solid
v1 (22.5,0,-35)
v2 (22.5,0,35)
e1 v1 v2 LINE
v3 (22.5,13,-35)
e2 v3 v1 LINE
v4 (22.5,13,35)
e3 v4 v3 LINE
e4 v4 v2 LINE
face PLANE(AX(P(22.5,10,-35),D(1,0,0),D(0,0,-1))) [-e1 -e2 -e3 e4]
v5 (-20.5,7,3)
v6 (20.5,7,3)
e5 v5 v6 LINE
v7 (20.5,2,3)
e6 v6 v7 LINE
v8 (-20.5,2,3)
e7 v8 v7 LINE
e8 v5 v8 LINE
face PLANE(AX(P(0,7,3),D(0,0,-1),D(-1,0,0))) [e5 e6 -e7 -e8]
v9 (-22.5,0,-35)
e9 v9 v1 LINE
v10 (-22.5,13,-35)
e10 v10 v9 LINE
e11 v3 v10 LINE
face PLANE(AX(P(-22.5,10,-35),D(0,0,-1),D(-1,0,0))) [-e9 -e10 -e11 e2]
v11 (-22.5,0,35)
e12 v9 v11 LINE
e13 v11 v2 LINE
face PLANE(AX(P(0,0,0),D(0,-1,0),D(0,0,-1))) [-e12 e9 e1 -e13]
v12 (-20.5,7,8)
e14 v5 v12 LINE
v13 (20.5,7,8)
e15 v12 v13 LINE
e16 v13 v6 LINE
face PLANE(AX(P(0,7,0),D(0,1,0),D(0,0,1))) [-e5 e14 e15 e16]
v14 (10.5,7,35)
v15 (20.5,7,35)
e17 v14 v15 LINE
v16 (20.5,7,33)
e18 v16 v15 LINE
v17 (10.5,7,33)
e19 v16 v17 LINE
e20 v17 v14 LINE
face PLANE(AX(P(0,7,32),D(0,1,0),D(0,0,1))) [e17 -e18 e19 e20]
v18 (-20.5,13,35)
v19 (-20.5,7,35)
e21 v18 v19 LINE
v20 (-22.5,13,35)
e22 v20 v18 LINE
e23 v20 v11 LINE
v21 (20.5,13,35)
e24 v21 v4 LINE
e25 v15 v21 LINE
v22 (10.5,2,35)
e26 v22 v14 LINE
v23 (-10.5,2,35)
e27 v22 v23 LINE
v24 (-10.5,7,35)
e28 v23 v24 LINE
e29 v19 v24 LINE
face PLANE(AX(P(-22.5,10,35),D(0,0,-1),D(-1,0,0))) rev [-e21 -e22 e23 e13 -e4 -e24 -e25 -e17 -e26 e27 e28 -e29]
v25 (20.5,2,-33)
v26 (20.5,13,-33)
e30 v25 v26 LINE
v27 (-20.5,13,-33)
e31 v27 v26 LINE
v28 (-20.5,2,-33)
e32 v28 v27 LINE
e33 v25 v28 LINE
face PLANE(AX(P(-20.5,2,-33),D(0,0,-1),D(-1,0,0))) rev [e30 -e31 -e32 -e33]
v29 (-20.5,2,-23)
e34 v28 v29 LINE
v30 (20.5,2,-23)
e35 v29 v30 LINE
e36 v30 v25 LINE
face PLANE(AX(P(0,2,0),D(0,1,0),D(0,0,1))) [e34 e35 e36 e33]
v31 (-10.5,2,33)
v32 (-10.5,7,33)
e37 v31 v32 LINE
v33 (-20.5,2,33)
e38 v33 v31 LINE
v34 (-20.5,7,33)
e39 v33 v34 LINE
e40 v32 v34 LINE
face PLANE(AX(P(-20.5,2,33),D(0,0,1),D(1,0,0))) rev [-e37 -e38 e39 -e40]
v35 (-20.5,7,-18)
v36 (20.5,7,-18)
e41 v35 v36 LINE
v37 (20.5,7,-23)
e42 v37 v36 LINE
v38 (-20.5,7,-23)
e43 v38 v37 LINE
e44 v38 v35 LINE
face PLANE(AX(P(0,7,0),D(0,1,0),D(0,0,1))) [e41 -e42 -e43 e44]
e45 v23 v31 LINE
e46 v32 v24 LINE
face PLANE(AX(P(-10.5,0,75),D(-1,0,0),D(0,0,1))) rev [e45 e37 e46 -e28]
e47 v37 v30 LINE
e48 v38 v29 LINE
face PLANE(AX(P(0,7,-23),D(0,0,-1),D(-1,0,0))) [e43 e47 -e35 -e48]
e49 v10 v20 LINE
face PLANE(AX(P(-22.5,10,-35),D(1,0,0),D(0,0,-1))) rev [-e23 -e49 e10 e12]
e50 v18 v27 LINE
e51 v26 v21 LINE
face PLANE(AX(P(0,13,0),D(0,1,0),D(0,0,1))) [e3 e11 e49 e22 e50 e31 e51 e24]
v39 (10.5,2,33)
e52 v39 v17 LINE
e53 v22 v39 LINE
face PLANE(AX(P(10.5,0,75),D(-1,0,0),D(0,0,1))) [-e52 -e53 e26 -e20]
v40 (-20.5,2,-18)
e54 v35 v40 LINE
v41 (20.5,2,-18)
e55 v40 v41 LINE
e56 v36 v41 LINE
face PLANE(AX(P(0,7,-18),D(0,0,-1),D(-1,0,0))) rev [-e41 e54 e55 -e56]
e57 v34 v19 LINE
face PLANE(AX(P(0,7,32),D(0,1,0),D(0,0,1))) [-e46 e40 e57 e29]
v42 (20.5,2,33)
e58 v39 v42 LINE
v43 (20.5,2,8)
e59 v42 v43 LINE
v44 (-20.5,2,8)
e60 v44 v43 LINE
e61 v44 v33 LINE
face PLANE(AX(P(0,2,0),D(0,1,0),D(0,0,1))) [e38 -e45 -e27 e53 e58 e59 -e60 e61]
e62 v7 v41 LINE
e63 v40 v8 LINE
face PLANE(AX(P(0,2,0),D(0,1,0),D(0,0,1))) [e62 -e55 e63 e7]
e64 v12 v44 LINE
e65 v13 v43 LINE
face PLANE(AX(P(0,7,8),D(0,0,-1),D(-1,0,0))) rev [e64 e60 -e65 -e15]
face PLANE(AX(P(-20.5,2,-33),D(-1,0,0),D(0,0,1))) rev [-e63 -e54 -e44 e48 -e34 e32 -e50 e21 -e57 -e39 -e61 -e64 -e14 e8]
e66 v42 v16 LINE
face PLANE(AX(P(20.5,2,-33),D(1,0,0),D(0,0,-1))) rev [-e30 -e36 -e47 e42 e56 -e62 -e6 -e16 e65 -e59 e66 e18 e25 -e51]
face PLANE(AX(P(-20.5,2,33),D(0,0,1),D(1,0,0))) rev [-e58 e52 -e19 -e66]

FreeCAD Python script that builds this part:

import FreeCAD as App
import Part
import Sketcher
from FreeCAD import Vector
Q = App.Units.Quantity

doc = App.newDocument("Part")
body = doc.addObject("PartDesign::Body", "Body")

# Sketch on XZ plane
sketch1 = body.newObject("Sketcher::SketchObject", "Sketch")
sketch1.AttachmentSupport = (doc.getObject("XZ_Plane"), [""])
sketch1.MapMode = "FlatFace"
sketch1.addGeometry([
    Part.LineSegment(Vector(-22, -35, 0), Vector(-22, 35, 0)),
    Part.LineSegment(Vector(-22, 35, 0), Vector(22, 35, 0)),
    Part.LineSegment(Vector(22, 35, 0), Vector(22, -35, 0)),
    Part.LineSegment(Vector(22, -35, 0), Vector(-22, -35, 0)),
], False)
sketch1.addConstraint([
    Sketcher.Constraint("Coincident", 0, 2, 1, 1),
    Sketcher.Constraint("Coincident", 1, 2, 2, 1),
    Sketcher.Constraint("Coincident", 2, 2, 3, 1),
    Sketcher.Constraint("Coincident", 3, 2, 0, 1),
    Sketcher.Constraint("Vertical", 0),
    Sketcher.Constraint("Horizontal", 1),
    Sketcher.Constraint("Vertical", 2),
    Sketcher.Constraint("Horizontal", 3),
    Sketcher.Constraint("Symmetric", 0, 2, 2, 2, -1, 1),
    Sketcher.Constraint("DistanceX", 1, 1, 1, 2, Q("45 mm")),
    Sketcher.Constraint("DistanceY", 0, 1, 0, 2, Q("70 mm")),
])
pad1 = body.newObject("PartDesign::Pad", "Pad")
pad1.Profile = sketch1
pad1.Length = 10
pad1.Reversed = True

# Sketch on XZ plane
sketch2 = body.newObject("Sketcher::SketchObject", "Sketch001")
sketch2.AttachmentSupport = (doc.getObject("XZ_Plane"), [""])
sketch2.MapMode = "FlatFace"
sketch2.AttachmentOffset = App.Placement(Vector(0, 0, -10), App.Rotation())
sketch2.addGeometry([
    Part.LineSegment(Vector(-20, -33, 0), Vector(-20, 33, 0)),
    Part.LineSegment(Vector(-20, 33, 0), Vector(20, 33, 0)),
    Part.LineSegment(Vector(20, 33, 0), Vector(20, -33, 0)),
    Part.LineSegment(Vector(20, -33, 0), Vector(-20, -33, 0)),
], False)
sketch2.addConstraint([
    Sketcher.Constraint("Coincident", 0, 2, 1, 1),
    Sketcher.Constraint("Coincident", 1, 2, 2, 1),
    Sketcher.Constraint("Coincident", 2, 2, 3, 1),
    Sketcher.Constraint("Coincident", 3, 2, 0, 1),
    Sketcher.Constraint("Vertical", 0),
    Sketcher.Constraint("Horizontal", 1),
    Sketcher.Constraint("Vertical", 2),
    Sketcher.Constraint("Horizontal", 3),
    Sketcher.Constraint("Symmetric", 0, 2, 2, 2, -1, 1),
    Sketcher.Constraint("DistanceX", 1, 1, 1, 2, Q("41 mm")),
    Sketcher.Constraint("DistanceY", 0, 1, 0, 2, Q("66 mm")),
])
pocket1 = body.newObject("PartDesign::Pocket", "Pocket")
pocket1.Profile = sketch2
pocket1.Length = 8
pocket1.Reversed = True

# Sketch on XY plane
sketch3 = body.newObject("Sketcher::SketchObject", "Sketch002")
sketch3.AttachmentSupport = (doc.getObject("XY_Plane"), [""])
sketch3.MapMode = "FlatFace"
sketch3.AttachmentOffset = App.Placement(Vector(0, 0, 33), App.Rotation())
sketch3.addGeometry([
    Part.LineSegment(Vector(20.5, 10, 0), Vector(20.5, 7, 0)),
    Part.LineSegment(Vector(20.5, 7, 0), Vector(-20.5, 7, 0)),
    Part.LineSegment(Vector(-20.5, 7, 0), Vector(-20.5, 10, 0)),
    Part.LineSegment(Vector(-20.5, 10, 0), Vector(20.5, 10, 0)),
], False)
sketch3.addConstraint([
    Sketcher.Constraint("Coincident", 0, 2, 1, 1),
    Sketcher.Constraint("Coincident", 1, 2, 2, 1),
    Sketcher.Constraint("Coincident", 2, 2, 3, 1),
    Sketcher.Constraint("Coincident", 3, 2, 0, 1),
    Sketcher.Constraint("Vertical", 0),
    Sketcher.Constraint("Horizontal", 1),
    Sketcher.Constraint("Vertical", 2),
    Sketcher.Constraint("Horizontal", 3),
    Sketcher.Constraint("DistanceX", 1, 2, 1, 1, Q("41 mm")),
    Sketcher.Constraint("DistanceY", 0, 2, 0, 1, Q("3 mm")),
    Sketcher.Constraint("DistanceY", -1, 1, 0, 2, Q("7 mm")),
    Sketcher.Constraint("DistanceX", -1, 1, 0, 2, Q("20.5 mm")),
])
pocket2 = body.newObject("PartDesign::Pocket", "Pocket001")
pocket2.Profile = sketch3
pocket2.Type = "TwoLengths"
pocket2.Length = 1
pocket2.Length2 = 81

# Sketch on XY plane
sketch4 = body.newObject("Sketcher::SketchObject", "Sketch003")
sketch4.AttachmentSupport = (doc.getObject("XY_Plane"), [""])
sketch4.MapMode = "FlatFace"
sketch4.AttachmentOffset = App.Placement(Vector(0, 0, 33), App.Rotation())
sketch4.addGeometry([
    Part.LineSegment(Vector(10, 7, 0), Vector(10, 2, 0)),
    Part.LineSegment(Vector(10, 2, 0), Vector(-10, 2, 0)),
    Part.LineSegment(Vector(-10, 2, 0), Vector(-10, 7, 0)),
    Part.LineSegment(Vector(-10, 7, 0), Vector(10, 7, 0)),
], False)
sketch4.addConstraint([
    Sketcher.Constraint("Coincident", 0, 2, 1, 1),
    Sketcher.Constraint("Coincident", 1, 2, 2, 1),
    Sketcher.Constraint("Coincident", 2, 2, 3, 1),
    Sketcher.Constraint("Coincident", 3, 2, 0, 1),
    Sketcher.Constraint("Vertical", 0),
    Sketcher.Constraint("Horizontal", 1),
    Sketcher.Constraint("Vertical", 2),
    Sketcher.Constraint("Horizontal", 3),
    Sketcher.Constraint("DistanceX", 1, 2, 1, 1, Q("21 mm")),
    Sketcher.Constraint("DistanceY", 0, 2, 0, 1, Q("5 mm")),
    Sketcher.Constraint("DistanceY", -1, 1, 0, 2, Q("2 mm")),
    Sketcher.Constraint("DistanceX", -1, 1, 0, 2, Q("10.5 mm")),
])
pocket3 = body.newObject("PartDesign::Pocket", "Pocket002")
pocket3.Profile = sketch4
pocket3.Length = 42
pocket3.Reversed = True

# Sketch on XZ plane
sketch5 = body.newObject("Sketcher::SketchObject", "Sketch004")
sketch5.AttachmentSupport = (doc.getObject("XZ_Plane"), [""])
sketch5.MapMode = "FlatFace"
sketch5.AttachmentOffset = App.Placement(Vector(0, 0, -2), App.Rotation())
sketch5.addGeometry([
    Part.LineSegment(Vector(-20, 3, 0), Vector(-20, 8, 0)),
    Part.LineSegment(Vector(-20, 8, 0), Vector(20, 8, 0)),
    Part.LineSegment(Vector(20, 8, 0), Vector(20, 3, 0)),
    Part.LineSegment(Vector(20, 3, 0), Vector(-20, 3, 0)),
], False)
sketch5.addConstraint([
    Sketcher.Constraint("Coincident", 0, 2, 1, 1),
    Sketcher.Constraint("Coincident", 1, 2, 2, 1),
    Sketcher.Constraint("Coincident", 2, 2, 3, 1),
    Sketcher.Constraint("Coincident", 3, 2, 0, 1),
    Sketcher.Constraint("Vertical", 0),
    Sketcher.Constraint("Horizontal", 1),
    Sketcher.Constraint("Vertical", 2),
    Sketcher.Constraint("Horizontal", 3),
    Sketcher.Constraint("DistanceX", 1, 1, 1, 2, Q("41 mm")),
    Sketcher.Constraint("DistanceY", 0, 1, 0, 2, Q("5 mm")),
    Sketcher.Constraint("DistanceY", -1, 1, 0, 2, Q("8 mm")),
    Sketcher.Constraint("DistanceX", 0, 2, -1, 1, Q("20.5 mm")),
])
pad2 = body.newObject("PartDesign::Pad", "Pad001")
pad2.Profile = sketch5
pad2.Length = 5
pad2.Reversed = True

# Sketch on XZ plane
sketch6 = body.newObject("Sketcher::SketchObject", "Sketch005")
sketch6.AttachmentSupport = (doc.getObject("XZ_Plane"), [""])
sketch6.MapMode = "FlatFace"
sketch6.AttachmentOffset = App.Placement(Vector(0, 0, -2), App.Rotation())
sketch6.addGeometry([
    Part.LineSegment(Vector(-20, -23, 0), Vector(-20, -18, 0)),
    Part.LineSegment(Vector(-20, -18, 0), Vector(20, -18, 0)),
    Part.LineSegment(Vector(20, -18, 0), Vector(20, -23, 0)),
    Part.LineSegment(Vector(20, -23, 0), Vector(-20, -23, 0)),
], False)
sketch6.addConstraint([
    Sketcher.Constraint("Coincident", 0, 2, 1, 1),
    Sketcher.Constraint("Coincident", 1, 2, 2, 1),
    Sketcher.Constraint("Coincident", 2, 2, 3, 1),
    Sketcher.Constraint("Coincident", 3, 2, 0, 1),
    Sketcher.Constraint("Vertical", 0),
    Sketcher.Constraint("Horizontal", 1),
    Sketcher.Constraint("Vertical", 2),
    Sketcher.Constraint("Horizontal", 3),
    Sketcher.Constraint("DistanceX", 1, 1, 1, 2, Q("41 mm")),
    Sketcher.Constraint("DistanceY", 0, 1, 0, 2, Q("5 mm")),
    Sketcher.Constraint("DistanceY", 0, 2, -1, 1, Q("18 mm")),
    Sketcher.Constraint("DistanceX", 0, 2, -1, 1, Q("20.5 mm")),
])
pad3 = body.newObject("PartDesign::Pad", "Pad002")
pad3.Profile = sketch6
pad3.Length = 5
pad3.Reversed = True

# Sketch on XZ plane
sketch7 = body.newObject("Sketcher::SketchObject", "Sketch006")
sketch7.AttachmentSupport = (doc.getObject("XZ_Plane"), [""])
sketch7.MapMode = "FlatFace"
sketch7.AttachmentOffset = App.Placement(Vector(0, 0, -10), App.Rotation())
sketch7.addGeometry([
    Part.LineSegment(Vector(-22.5, -35, 0), Vector(-22.5, 35, 0)),
    Part.LineSegment(Vector(-22.5, 35, 0), Vector(-20.5, 35, 0)),
    Part.LineSegment(Vector(-20.5, 35, 0), Vector(-20.5, -35, 0)),
    Part.LineSegment(Vector(-20.5, -35, 0), Vector(-22.5, -35, 0)),
], False)
sketch7.addConstraint([
    Sketcher.Constraint("Coincident", 0, 2, 1, 1),
    Sketcher.Constraint("Coincident", 1, 2, 2, 1),
    Sketcher.Constraint("Coincident", 2, 2, 3, 1),
    Sketcher.Constraint("Coincident", 3, 2, 0, 1),
    Sketcher.Constraint("Vertical", 0),
    Sketcher.Constraint("Horizontal", 1),
    Sketcher.Constraint("Vertical", 2),
    Sketcher.Constraint("Horizontal", 3),
    Sketcher.Constraint("DistanceX", 1, 1, 1, 2, Q("2 mm")),
    Sketcher.Constraint("DistanceY", 0, 1, 0, 2, Q("70 mm")),
    Sketcher.Constraint("DistanceY", -1, 1, 0, 2, Q("35 mm")),
    Sketcher.Constraint("DistanceX", 0, 2, -1, 1, Q("22.5 mm")),
])
pad4 = body.newObject("PartDesign::Pad", "Pad003")
pad4.Profile = sketch7
pad4.Length = 3
pad4.Reversed = True

# Sketch on XZ plane
sketch8 = body.newObject("Sketcher::SketchObject", "Sketch007")
sketch8.AttachmentSupport = (doc.getObject("XZ_Plane"), [""])
sketch8.MapMode = "FlatFace"
sketch8.AttachmentOffset = App.Placement(Vector(0, 0, -10), App.Rotation())
sketch8.addGeometry([
    Part.LineSegment(Vector(-20.5, -35, 0), Vector(-20.5, -33, 0)),
    Part.LineSegment(Vector(-20.5, -33, 0), Vector(20.5, -33, 0)),
    Part.LineSegment(Vector(20.5, -33, 0), Vector(20.5, -35, 0)),
    Part.LineSegment(Vector(20.5, -35, 0), Vector(-20.5, -35, 0)),
], False)
sketch8.addConstraint([
    Sketcher.Constraint("Coincident", 0, 2, 1, 1),
    Sketcher.Constraint("Coincident", 1, 2, 2, 1),
    Sketcher.Constraint("Coincident", 2, 2, 3, 1),
    Sketcher.Constraint("Coincident", 3, 2, 0, 1),
    Sketcher.Constraint("Vertical", 0),
    Sketcher.Constraint("Horizontal", 1),
    Sketcher.Constraint("Vertical", 2),
    Sketcher.Constraint("Horizontal", 3),
    Sketcher.Constraint("DistanceX", 1, 1, 1, 2, Q("41 mm")),
    Sketcher.Constraint("DistanceY", 0, 1, 0, 2, Q("2 mm")),
    Sketcher.Constraint("DistanceY", 0, 2, -1, 1, Q("33 mm")),
    Sketcher.Constraint("DistanceX", 0, 2, -1, 1, Q("20.5 mm")),
])
pad5 = body.newObject("PartDesign::Pad", "Pad004")
pad5.Profile = sketch8
pad5.Length = 3
pad5.Reversed = True

# Sketch on XZ plane
sketch9 = body.newObject("Sketcher::SketchObject", "Sketch008")
sketch9.AttachmentSupport = (doc.getObject("XZ_Plane"), [""])
sketch9.MapMode = "FlatFace"
sketch9.AttachmentOffset = App.Placement(Vector(0, 0, -10), App.Rotation())
sketch9.addGeometry([
    Part.LineSegment(Vector(20.5, -35, 0), Vector(20.5, 35, 0)),
    Part.LineSegment(Vector(20.5, 35, 0), Vector(22.5, 35, 0)),
    Part.LineSegment(Vector(22.5, 35, 0), Vector(22.5, -35, 0)),
    Part.LineSegment(Vector(22.5, -35, 0), Vector(20.5, -35, 0)),
], False)
sketch9.addConstraint([
    Sketcher.Constraint("Coincident", 0, 2, 1, 1),
    Sketcher.Constraint("Coincident", 1, 2, 2, 1),
    Sketcher.Constraint("Coincident", 2, 2, 3, 1),
    Sketcher.Constraint("Coincident", 3, 2, 0, 1),
    Sketcher.Constraint("Vertical", 0),
    Sketcher.Constraint("Horizontal", 1),
    Sketcher.Constraint("Vertical", 2),
    Sketcher.Constraint("Horizontal", 3),
    Sketcher.Constraint("DistanceX", 1, 1, 1, 2, Q("2 mm")),
    Sketcher.Constraint("DistanceY", 0, 1, 0, 2, Q("70 mm")),
    Sketcher.Constraint("DistanceY", -1, 1, 0, 2, Q("35 mm")),
    Sketcher.Constraint("DistanceX", -1, 1, 0, 2, Q("20.5 mm")),
])
pad6 = body.newObject("PartDesign::Pad", "Pad005")
pad6.Profile = sketch9
pad6.Length = 3
pad6.Reversed = True

doc.recompute()
